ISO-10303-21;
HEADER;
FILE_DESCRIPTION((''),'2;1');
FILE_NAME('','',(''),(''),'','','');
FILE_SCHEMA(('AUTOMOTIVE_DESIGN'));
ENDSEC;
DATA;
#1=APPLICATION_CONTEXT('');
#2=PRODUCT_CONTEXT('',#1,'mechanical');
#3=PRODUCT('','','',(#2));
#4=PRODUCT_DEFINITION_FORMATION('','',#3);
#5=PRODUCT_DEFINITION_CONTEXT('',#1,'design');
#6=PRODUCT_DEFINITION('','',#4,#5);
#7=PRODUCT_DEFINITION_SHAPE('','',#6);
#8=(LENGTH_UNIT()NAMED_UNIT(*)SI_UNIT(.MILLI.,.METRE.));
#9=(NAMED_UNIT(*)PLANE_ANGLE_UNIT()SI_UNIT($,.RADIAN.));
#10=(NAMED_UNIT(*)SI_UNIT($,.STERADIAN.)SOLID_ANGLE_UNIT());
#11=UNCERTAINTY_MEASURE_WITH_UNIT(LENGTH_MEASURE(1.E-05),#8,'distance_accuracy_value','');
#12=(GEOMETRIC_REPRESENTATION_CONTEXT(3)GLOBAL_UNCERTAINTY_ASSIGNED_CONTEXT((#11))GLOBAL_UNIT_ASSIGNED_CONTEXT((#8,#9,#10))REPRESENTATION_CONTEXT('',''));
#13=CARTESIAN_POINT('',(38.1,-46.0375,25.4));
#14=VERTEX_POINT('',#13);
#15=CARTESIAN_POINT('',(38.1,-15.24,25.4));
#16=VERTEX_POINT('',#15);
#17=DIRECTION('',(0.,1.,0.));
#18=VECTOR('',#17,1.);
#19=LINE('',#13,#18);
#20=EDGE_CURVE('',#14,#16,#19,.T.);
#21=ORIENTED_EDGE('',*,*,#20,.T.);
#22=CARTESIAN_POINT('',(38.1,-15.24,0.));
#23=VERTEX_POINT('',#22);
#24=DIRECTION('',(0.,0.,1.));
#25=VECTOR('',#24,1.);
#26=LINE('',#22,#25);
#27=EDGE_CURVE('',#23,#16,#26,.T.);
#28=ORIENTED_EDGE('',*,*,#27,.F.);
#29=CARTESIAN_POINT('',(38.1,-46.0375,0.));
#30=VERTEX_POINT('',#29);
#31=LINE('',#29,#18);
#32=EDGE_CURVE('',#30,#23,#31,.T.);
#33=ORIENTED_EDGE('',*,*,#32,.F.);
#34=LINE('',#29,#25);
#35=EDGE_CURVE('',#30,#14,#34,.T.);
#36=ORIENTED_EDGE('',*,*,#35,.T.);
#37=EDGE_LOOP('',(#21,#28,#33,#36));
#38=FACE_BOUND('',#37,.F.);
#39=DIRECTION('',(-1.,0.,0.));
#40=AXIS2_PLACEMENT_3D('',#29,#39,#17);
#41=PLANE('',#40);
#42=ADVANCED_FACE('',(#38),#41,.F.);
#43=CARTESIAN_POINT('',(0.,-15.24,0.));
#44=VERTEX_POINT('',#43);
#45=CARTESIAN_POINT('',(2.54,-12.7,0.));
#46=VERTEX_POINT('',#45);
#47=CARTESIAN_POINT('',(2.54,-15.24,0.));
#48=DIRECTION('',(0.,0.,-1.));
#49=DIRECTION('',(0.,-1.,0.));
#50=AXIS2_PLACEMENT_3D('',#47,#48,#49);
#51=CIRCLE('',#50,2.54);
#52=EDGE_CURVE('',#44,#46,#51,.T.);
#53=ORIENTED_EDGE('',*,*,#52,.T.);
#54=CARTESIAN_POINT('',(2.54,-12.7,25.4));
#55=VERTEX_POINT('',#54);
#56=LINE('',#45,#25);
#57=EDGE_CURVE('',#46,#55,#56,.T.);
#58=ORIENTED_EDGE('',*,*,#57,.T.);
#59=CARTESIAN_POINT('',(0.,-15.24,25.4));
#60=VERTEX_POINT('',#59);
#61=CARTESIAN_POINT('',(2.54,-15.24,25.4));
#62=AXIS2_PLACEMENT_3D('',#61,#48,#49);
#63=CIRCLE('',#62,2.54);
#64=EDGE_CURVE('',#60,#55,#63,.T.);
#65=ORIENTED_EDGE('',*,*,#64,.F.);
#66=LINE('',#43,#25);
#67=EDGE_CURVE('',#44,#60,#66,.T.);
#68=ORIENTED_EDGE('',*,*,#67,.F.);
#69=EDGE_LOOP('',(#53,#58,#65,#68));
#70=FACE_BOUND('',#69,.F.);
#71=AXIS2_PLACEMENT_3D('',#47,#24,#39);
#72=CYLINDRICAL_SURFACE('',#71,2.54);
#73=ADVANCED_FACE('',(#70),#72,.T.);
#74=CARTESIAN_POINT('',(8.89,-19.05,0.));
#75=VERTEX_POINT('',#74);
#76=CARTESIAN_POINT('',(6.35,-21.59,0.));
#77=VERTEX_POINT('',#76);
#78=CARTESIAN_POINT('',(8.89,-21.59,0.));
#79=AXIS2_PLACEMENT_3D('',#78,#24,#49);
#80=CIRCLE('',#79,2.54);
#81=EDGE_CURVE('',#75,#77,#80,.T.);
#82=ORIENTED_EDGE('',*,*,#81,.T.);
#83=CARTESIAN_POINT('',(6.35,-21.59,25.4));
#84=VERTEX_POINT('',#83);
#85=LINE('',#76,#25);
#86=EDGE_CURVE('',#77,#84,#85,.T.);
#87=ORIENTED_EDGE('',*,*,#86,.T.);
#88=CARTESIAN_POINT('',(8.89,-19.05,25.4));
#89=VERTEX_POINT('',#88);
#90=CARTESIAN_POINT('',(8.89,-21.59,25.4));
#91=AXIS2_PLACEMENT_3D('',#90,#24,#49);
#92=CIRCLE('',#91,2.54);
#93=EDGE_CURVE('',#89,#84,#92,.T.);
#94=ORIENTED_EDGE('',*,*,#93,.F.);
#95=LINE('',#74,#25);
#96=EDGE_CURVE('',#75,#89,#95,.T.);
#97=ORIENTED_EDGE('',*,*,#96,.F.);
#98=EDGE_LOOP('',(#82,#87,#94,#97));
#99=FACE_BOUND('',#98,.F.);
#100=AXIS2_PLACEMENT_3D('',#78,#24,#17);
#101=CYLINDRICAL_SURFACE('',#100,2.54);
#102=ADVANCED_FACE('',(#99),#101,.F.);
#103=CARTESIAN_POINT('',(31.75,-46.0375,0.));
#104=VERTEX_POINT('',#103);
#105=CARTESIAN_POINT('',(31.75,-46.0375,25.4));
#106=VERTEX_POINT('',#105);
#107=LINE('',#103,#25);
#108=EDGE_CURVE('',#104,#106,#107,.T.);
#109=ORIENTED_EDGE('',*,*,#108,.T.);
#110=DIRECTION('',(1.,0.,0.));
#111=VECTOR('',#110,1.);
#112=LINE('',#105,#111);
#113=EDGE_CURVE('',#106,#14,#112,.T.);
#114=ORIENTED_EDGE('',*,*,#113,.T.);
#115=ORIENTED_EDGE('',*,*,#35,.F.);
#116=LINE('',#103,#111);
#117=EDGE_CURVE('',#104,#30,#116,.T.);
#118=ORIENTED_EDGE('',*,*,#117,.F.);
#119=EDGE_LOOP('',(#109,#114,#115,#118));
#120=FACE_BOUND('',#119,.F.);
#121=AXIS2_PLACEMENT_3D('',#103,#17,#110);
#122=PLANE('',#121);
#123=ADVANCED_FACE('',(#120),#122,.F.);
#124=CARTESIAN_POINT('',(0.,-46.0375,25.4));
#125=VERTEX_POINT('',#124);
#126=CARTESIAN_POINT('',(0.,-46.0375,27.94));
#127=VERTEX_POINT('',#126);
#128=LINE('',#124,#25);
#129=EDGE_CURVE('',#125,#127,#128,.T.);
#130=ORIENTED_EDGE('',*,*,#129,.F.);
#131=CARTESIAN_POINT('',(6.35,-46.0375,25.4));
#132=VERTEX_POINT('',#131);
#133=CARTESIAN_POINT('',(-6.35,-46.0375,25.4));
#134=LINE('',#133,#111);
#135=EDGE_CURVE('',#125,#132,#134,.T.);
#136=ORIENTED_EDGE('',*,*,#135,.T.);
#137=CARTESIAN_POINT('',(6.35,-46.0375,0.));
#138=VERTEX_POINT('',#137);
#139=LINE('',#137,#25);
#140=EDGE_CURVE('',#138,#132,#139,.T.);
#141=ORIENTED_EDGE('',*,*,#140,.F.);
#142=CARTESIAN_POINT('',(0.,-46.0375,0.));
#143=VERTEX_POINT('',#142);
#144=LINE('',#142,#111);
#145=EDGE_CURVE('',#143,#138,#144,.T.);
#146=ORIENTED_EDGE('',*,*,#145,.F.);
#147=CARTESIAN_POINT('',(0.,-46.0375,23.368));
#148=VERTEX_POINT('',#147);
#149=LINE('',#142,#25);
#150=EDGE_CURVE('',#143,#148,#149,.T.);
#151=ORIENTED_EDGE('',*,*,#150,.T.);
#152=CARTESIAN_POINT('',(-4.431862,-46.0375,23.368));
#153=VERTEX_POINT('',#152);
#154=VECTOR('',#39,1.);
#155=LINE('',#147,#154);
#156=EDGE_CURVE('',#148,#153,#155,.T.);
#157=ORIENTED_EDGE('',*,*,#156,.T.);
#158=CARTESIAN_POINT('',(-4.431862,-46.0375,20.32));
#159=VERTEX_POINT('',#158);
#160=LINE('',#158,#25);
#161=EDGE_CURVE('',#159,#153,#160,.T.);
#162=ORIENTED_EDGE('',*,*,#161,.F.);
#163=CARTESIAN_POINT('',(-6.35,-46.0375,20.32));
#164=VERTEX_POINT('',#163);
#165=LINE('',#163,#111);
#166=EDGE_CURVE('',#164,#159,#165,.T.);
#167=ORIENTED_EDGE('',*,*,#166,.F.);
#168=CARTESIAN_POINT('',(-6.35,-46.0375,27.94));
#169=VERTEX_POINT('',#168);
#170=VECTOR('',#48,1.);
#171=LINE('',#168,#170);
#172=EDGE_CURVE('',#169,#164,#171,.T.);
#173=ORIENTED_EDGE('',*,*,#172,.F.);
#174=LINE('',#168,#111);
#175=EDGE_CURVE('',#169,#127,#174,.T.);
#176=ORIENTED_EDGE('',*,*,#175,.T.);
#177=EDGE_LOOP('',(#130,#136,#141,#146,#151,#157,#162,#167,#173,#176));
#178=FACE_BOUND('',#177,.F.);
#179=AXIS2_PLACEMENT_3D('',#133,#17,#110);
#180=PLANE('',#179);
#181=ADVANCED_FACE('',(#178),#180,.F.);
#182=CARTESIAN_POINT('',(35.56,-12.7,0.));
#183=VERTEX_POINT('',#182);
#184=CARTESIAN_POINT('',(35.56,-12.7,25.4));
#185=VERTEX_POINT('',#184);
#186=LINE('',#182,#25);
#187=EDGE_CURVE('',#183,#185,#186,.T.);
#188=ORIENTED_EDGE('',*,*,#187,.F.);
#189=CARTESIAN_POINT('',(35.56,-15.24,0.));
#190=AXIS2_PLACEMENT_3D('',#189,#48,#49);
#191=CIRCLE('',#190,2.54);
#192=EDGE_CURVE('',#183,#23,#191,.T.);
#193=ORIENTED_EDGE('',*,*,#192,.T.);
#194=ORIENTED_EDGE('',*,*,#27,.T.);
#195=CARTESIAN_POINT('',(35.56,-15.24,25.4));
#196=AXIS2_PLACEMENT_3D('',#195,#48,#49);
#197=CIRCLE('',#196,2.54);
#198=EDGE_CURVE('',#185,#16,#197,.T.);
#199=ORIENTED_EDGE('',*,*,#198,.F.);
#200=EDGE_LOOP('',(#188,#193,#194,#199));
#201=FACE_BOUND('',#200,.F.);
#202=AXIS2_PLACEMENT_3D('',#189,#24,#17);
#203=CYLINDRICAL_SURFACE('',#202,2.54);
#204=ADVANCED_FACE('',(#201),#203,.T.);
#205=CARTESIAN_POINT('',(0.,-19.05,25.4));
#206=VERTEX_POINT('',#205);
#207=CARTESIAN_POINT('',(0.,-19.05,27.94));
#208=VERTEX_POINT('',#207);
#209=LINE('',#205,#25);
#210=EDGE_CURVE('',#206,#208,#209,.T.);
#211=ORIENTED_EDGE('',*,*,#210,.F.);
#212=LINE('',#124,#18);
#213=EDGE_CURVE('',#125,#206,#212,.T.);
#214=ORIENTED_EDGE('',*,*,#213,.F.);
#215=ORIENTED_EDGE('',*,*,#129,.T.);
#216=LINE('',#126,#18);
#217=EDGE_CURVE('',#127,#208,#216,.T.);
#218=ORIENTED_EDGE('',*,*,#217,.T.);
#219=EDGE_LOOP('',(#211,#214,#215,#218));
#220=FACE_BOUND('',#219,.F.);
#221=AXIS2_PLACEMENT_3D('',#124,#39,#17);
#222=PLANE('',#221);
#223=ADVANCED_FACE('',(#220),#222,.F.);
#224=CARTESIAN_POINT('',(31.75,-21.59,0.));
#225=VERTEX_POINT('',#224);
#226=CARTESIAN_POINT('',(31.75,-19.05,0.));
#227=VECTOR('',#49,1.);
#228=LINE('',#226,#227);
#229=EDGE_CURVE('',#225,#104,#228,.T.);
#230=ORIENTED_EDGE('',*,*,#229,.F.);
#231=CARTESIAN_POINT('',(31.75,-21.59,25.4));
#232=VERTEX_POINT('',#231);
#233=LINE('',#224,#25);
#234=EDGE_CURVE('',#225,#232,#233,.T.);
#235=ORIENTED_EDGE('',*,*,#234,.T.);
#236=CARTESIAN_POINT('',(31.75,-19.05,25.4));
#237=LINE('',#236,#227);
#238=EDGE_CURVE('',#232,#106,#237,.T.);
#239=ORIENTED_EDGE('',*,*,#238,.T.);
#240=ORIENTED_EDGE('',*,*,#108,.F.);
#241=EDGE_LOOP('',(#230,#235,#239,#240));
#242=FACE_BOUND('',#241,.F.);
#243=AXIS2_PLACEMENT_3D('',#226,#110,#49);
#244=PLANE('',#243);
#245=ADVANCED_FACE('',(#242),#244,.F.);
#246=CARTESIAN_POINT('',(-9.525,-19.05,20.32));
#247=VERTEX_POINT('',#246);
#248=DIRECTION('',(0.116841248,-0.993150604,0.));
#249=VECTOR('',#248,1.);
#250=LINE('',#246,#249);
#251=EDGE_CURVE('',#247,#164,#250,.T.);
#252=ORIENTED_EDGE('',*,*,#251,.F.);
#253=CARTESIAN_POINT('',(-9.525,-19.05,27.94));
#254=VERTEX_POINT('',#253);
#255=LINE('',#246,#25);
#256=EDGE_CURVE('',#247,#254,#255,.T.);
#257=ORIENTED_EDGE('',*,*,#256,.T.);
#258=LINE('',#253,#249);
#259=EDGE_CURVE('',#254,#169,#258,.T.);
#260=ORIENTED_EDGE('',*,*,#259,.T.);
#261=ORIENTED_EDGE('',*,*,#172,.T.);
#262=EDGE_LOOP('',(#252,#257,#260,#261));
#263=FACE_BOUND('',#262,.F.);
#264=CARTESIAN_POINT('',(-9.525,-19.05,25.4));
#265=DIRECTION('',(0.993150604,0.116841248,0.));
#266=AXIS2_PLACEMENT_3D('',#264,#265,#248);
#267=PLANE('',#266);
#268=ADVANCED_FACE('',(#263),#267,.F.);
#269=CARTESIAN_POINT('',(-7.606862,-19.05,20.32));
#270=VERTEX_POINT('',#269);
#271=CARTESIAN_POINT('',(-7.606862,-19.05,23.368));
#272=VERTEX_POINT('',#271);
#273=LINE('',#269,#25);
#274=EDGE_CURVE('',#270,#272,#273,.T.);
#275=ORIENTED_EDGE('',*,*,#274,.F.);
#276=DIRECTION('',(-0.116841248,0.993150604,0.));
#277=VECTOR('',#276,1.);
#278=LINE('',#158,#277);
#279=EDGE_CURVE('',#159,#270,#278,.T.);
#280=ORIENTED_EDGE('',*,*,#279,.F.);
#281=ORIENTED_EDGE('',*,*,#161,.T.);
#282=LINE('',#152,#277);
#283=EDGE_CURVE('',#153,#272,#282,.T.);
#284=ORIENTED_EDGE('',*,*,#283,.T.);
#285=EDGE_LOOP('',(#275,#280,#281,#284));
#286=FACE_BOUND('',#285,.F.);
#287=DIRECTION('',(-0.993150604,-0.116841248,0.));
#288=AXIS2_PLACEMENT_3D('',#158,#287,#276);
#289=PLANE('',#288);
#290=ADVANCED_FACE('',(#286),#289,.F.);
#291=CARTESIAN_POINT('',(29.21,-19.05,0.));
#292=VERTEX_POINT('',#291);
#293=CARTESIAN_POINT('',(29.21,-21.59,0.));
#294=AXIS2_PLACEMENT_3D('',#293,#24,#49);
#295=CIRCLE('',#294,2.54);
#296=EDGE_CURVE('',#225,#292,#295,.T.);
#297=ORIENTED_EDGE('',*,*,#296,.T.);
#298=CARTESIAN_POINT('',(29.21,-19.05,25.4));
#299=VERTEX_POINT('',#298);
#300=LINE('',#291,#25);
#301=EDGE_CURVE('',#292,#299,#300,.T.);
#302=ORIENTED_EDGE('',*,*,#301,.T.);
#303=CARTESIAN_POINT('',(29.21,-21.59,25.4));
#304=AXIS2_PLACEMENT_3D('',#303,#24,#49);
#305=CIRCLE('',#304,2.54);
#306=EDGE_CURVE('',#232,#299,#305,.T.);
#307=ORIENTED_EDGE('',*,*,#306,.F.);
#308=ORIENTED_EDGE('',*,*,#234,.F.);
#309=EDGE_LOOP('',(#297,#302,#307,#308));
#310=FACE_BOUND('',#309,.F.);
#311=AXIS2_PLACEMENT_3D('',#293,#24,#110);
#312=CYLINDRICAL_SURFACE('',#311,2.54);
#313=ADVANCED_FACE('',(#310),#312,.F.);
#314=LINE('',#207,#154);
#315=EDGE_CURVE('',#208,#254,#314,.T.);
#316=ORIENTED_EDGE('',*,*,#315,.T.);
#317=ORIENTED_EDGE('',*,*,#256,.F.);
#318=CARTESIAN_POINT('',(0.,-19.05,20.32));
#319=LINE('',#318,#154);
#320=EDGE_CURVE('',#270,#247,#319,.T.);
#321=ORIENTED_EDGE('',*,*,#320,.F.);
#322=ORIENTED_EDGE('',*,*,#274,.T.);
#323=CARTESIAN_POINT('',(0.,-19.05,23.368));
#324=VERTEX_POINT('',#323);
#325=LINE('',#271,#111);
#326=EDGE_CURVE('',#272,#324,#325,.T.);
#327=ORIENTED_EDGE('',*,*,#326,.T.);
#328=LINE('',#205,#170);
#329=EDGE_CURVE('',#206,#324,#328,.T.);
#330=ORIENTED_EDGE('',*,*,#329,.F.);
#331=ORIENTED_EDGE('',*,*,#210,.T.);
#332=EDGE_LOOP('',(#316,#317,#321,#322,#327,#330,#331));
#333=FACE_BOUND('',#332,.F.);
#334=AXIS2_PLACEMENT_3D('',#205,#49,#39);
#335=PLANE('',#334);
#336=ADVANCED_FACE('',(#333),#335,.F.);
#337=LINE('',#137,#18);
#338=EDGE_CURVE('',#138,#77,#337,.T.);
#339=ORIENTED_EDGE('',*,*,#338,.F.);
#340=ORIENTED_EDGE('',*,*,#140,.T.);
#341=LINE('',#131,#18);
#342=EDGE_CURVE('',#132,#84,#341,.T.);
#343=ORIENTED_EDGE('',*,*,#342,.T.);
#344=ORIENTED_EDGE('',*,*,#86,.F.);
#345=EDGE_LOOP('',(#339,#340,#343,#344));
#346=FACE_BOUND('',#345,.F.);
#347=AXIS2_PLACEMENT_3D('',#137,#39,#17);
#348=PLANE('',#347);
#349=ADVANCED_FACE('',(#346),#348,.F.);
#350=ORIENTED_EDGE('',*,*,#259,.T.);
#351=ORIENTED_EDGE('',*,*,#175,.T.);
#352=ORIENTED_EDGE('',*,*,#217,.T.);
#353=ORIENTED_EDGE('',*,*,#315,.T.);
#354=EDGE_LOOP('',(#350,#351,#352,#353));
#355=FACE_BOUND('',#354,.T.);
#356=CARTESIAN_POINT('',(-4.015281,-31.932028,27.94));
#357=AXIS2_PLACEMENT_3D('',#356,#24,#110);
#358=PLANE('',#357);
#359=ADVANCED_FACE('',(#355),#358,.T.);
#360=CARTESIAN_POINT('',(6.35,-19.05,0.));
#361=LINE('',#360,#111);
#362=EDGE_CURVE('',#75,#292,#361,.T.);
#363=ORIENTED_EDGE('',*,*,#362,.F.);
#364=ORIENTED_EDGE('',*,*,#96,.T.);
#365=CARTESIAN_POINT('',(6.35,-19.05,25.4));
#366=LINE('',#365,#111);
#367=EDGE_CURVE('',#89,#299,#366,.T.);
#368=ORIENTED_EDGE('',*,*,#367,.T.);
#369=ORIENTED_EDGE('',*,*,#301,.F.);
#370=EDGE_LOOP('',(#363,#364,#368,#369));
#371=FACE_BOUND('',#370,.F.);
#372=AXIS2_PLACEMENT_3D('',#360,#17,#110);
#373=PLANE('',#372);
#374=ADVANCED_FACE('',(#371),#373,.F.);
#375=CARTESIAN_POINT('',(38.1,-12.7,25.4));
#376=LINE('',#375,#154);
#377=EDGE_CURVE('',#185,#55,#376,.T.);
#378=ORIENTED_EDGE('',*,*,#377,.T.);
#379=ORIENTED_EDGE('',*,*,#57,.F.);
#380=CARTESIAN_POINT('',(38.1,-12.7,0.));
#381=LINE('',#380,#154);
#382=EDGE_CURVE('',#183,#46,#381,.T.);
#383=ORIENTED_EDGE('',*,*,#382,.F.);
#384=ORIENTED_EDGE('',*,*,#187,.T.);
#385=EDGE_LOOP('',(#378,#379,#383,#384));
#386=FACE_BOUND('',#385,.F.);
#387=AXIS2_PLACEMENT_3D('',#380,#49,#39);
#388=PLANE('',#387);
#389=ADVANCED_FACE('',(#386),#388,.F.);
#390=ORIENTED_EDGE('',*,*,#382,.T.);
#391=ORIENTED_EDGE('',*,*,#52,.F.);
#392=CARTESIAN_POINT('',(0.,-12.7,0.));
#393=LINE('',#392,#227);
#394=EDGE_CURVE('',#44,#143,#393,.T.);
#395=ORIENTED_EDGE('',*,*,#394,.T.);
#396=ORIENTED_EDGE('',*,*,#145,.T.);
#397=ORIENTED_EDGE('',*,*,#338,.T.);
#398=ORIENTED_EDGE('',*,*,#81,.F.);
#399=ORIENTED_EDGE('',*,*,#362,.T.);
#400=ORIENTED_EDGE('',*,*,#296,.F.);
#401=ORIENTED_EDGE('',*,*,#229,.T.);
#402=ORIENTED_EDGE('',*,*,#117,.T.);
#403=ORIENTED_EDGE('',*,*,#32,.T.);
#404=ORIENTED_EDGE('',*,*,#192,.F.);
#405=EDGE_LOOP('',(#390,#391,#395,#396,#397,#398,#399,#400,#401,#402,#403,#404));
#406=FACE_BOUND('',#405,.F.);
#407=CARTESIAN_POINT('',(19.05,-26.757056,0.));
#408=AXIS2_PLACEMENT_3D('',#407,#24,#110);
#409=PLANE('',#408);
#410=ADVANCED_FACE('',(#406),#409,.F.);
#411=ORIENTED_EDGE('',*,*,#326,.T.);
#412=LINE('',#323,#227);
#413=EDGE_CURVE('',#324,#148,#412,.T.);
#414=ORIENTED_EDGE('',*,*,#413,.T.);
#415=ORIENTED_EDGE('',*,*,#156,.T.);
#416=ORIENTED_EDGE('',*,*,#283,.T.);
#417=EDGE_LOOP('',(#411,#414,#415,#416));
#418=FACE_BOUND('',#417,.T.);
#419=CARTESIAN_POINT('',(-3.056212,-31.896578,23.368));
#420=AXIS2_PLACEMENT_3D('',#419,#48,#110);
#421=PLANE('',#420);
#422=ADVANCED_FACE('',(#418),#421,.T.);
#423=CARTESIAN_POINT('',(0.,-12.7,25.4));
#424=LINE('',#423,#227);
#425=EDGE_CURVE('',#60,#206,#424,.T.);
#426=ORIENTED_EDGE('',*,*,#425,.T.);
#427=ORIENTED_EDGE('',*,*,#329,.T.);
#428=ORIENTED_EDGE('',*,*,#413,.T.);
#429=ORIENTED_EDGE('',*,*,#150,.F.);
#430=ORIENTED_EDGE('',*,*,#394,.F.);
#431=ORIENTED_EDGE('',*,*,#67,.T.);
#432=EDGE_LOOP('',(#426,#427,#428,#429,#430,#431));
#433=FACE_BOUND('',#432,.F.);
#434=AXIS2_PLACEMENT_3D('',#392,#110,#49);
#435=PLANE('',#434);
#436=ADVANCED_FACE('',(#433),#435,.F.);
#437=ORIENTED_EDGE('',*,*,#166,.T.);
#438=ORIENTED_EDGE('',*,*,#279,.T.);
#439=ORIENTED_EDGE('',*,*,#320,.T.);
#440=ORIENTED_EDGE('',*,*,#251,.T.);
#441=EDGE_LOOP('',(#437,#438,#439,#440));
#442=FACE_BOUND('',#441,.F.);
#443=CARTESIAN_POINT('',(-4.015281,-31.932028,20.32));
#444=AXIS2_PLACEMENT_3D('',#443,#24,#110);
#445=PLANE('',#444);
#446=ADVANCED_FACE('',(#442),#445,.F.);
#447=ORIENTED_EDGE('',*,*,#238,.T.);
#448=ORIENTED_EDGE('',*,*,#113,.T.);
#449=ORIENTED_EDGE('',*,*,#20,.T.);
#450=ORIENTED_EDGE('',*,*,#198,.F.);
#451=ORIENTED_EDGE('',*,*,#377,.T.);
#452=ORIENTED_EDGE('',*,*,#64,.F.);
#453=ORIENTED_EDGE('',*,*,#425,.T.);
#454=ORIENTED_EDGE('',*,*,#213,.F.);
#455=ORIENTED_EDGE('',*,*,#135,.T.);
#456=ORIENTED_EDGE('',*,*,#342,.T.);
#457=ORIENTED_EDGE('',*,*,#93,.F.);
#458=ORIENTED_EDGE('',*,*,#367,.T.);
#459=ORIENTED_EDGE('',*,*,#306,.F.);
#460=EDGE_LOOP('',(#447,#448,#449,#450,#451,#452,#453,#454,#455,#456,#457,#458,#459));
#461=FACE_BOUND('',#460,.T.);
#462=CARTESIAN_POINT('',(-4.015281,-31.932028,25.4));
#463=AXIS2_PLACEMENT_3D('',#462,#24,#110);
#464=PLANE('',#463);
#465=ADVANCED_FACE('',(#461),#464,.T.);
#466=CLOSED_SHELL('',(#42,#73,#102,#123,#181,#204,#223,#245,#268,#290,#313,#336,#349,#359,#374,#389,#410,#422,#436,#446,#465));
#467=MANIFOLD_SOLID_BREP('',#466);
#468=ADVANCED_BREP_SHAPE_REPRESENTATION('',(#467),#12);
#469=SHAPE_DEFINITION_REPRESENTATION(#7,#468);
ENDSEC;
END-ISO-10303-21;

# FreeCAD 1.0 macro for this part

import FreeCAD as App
import Part
import Sketcher
Q = App.Units.Quantity


def edges_at(feature, points):
    """Names of the edges that pass closest to the given points."""
    edges = feature.Shape.Edges
    near = lambda p: min(range(len(edges)), key=lambda i: edges[i].distToShape(Part.Vertex(*p))[0])
    return sorted({f"Edge{near(p) + 1}" for p in points})


def add_polygon(sketch, points):
    """Adds a closed chain of lines whose ends are joined by coincident constraints."""
    first, n = sketch.GeometryCount, len(points)
    for a, b in zip(points, points[1:] + points[:1]):
        sketch.addGeometry(Part.LineSegment(App.Vector(*a, 0), App.Vector(*b, 0)), False)
    for i in range(n):
        sketch.addConstraint(Sketcher.Constraint("Coincident", first + i, 2, first + (i + 1) % n, 1))

doc = App.newDocument("Part")
body = doc.addObject("PartDesign::Body", "Body")

# Sketch on XY plane
sketch1 = body.newObject("Sketcher::SketchObject", "Sketch")
sketch1.AttachmentSupport = (doc.getObject("XY_Plane"), [""])
sketch1.MapMode = "FlatFace"
add_polygon(sketch1, [(6.35, -19.05), (31.75, -19.05), (31.75, -46.0375), (38.1, -46.0375), (38.1, -12.7), (0, -12.7), (0, -46.0375), (6.35, -46.0375)])  # lines 0-7
sketch1.addConstraint([
    Sketcher.Constraint("Horizontal", 0),
    Sketcher.Constraint("Vertical", 1),
    Sketcher.Constraint("Horizontal", 2),
    Sketcher.Constraint("Vertical", 3),
    Sketcher.Constraint("Horizontal", 4),
    Sketcher.Constraint("Vertical", 5),
    Sketcher.Constraint("Horizontal", 6),
    Sketcher.Constraint("Vertical", 7),
    Sketcher.Constraint("PointOnObject", 4, 2, -2),
    Sketcher.Constraint("Horizontal", 2, 2, 5, 2),
    Sketcher.Constraint("Equal", 2, 6),
    Sketcher.Constraint("DistanceX", 0, 1, 0, 2, Q("1 in")),
    Sketcher.Constraint("DistanceX", 4, 2, 4, 1, Q("1.5 in")),
    Sketcher.Constraint("DistanceY", 3, 2, -1, 1, Q("0.5 in")),
    Sketcher.Constraint("DistanceY", 1, 2, 1, 1, Q("1.0625 in")),
    Sketcher.Constraint("DistanceY", 3, 1, 3, 2, Q("1.3125 in")),
])
pad1 = body.newObject("PartDesign::Pad", "Pad")
pad1.Profile = sketch1
pad1.Length = Q("1 in")

# Sketch on XY plane
sketch2 = body.newObject("Sketcher::SketchObject", "Sketch001")
sketch2.AttachmentSupport = (doc.getObject("XY_Plane"), [""])
sketch2.MapMode = "FlatFace"
sketch2.AttachmentOffset = App.Placement(App.Vector(0, 0, 1 * 25.4), App.Rotation())
add_polygon(sketch2, [(0, -46.0375), (0, -19.05), (-9.525, -19.05), (-6.35, -46.0375)])  # lines 0-3
sketch2.addConstraint([
    Sketcher.Constraint("Vertical", 0),
    Sketcher.Constraint("Horizontal", 1),
    Sketcher.Constraint("Horizontal", 3),
    Sketcher.Constraint("PointOnObject", 0, 2, -2),
    Sketcher.Constraint("DistanceX", 3, 1, 3, 2, Q("0.25 in")),
    Sketcher.Constraint("DistanceX", 1, 2, 1, 1, Q("0.375 in")),
    Sketcher.Constraint("DistanceY", 0, 1, 0, 2, Q("1.0625 in")),
    Sketcher.Constraint("DistanceY", 0, 2, -1, 1, Q("0.75 in")),
])
pad2 = body.newObject("PartDesign::Pad", "Pad001")
pad2.Profile = sketch2
pad2.Type = "TwoLengths"
pad2.Length = Q("0.2 in")
pad2.Length2 = Q("0.1 in")
pad2.Reversed = True
doc.recompute()

fillet = body.newObject("PartDesign::Fillet", "Fillet")
fillet.Base = (pad2, edges_at(pad2, [
    (6.35, -19.05, 12.7),
    (31.75, -19.05, 12.7),
    (38.1, -12.7, 12.7),
    (0, -12.7, 12.7),
]))
fillet.Radius = Q("0.1 in")

# Sketch on XY plane
sketch3 = body.newObject("Sketcher::SketchObject", "Sketch002")
sketch3.AttachmentSupport = (doc.getObject("XY_Plane"), [""])
sketch3.MapMode = "FlatFace"
sketch3.AttachmentOffset = App.Placement(App.Vector(0, 0, 0.8 * 25.4), App.Rotation())
add_polygon(sketch3, [(0, -46.0375), (-4.431862, -46.0375), (-7.606862, -19.05), (0, -19.05)])  # lines 0-3
sketch3.addConstraint([
    Sketcher.Constraint("Horizontal", 0),
    Sketcher.Constraint("Horizontal", 2),
    Sketcher.Constraint("Vertical", 3),
    Sketcher.Constraint("PointOnObject", 2, 2, -2),
    Sketcher.Constraint("DistanceY", 3, 2, 3, 1, Q("1.0625 in")),
    Sketcher.Constraint("DistanceY", 1, 2, -1, 1, Q("0.75 in")),
    Sketcher.Constraint("DistanceX", 1, 2, 0, 2, Q("0.125 in")),
    Sketcher.Constraint("DistanceX", 0, 2, 0, 1, Q("4.431862 mm")),
])
pocket1 = body.newObject("PartDesign::Pocket", "Pocket")
pocket1.Profile = sketch3
pocket1.Length = Q("0.12 in")
pocket1.Reversed = True

doc.recompute()
